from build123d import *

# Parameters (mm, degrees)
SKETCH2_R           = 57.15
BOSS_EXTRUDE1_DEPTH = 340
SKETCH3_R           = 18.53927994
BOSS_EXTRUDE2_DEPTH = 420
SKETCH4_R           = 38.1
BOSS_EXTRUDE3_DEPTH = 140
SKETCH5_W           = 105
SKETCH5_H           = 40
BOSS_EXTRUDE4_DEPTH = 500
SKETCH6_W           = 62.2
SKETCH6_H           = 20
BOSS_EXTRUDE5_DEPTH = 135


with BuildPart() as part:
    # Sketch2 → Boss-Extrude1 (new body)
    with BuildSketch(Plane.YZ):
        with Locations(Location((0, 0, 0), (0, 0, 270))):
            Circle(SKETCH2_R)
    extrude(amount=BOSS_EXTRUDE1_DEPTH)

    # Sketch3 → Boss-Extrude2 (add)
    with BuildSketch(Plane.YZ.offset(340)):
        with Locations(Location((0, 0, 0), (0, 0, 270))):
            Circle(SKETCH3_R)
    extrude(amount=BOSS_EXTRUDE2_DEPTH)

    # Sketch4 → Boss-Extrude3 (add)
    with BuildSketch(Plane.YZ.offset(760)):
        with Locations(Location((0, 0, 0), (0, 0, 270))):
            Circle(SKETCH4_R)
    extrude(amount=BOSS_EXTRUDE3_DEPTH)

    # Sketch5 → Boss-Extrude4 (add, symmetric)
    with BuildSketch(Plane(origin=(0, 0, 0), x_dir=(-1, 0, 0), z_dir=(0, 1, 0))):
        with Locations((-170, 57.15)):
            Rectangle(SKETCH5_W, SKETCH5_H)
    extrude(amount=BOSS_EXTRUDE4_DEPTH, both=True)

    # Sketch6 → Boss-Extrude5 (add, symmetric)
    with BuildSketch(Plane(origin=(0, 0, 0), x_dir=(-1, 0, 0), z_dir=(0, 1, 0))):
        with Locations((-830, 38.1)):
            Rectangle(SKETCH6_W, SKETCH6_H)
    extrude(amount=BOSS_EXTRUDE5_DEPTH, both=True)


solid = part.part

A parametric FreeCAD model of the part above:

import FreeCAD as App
import Part
import Sketcher
from FreeCAD import Vector
Q = App.Units.Quantity

doc = App.newDocument("Part")
body = doc.addObject("PartDesign::Body", "Body")

sketch1 = doc.addObject("Sketcher::SketchObject", "Sketch")
body.addObject(sketch1)
sketch1.AttachmentSupport = (doc.YZ_Plane, [""])
sketch1.MapMode = "FlatFace"
sketch1.addGeometry(Part.Circle(Vector(0, 0, 0), Vector(0, 0, 1), 57), False)
sketch1.addConstraint([
    Sketcher.Constraint("Coincident", 0, 3, -1, 1),
    Sketcher.Constraint("Diameter", 0, Q("114.3 mm")),
])
pad1 = doc.addObject("PartDesign::Pad", "Pad")
body.addObject(pad1)
pad1.Profile = sketch1
pad1.Length = 340

sketch2 = doc.addObject("Sketcher::SketchObject", "Sketch001")
body.addObject(sketch2)
sketch2.AttachmentSupport = (doc.YZ_Plane, [""])
sketch2.MapMode = "FlatFace"
sketch2.AttachmentOffset = App.Placement(Vector(0, 0, 340), App.Rotation())
sketch2.addGeometry(Part.Circle(Vector(0, 0, 0), Vector(0, 0, 1), 19), False)
sketch2.addConstraint([
    Sketcher.Constraint("Coincident", 0, 3, -1, 1),
    Sketcher.Constraint("Diameter", 0, Q("37.07856 mm")),
])
pad2 = doc.addObject("PartDesign::Pad", "Pad001")
body.addObject(pad2)
pad2.Profile = sketch2
pad2.Length = 420

sketch3 = doc.addObject("Sketcher::SketchObject", "Sketch002")
body.addObject(sketch3)
sketch3.AttachmentSupport = (doc.YZ_Plane, [""])
sketch3.MapMode = "FlatFace"
sketch3.AttachmentOffset = App.Placement(Vector(0, 0, 760), App.Rotation())
sketch3.addGeometry(Part.Circle(Vector(0, 0, 0), Vector(0, 0, 1), 38), False)
sketch3.addConstraint([
    Sketcher.Constraint("Coincident", 0, 3, -1, 1),
    Sketcher.Constraint("Diameter", 0, Q("76.2 mm")),
])
pad3 = doc.addObject("PartDesign::Pad", "Pad002")
body.addObject(pad3)
pad3.Profile = sketch3
pad3.Length = 140

sketch4 = doc.addObject("Sketcher::SketchObject", "Sketch003")
body.addObject(sketch4)
sketch4.AttachmentSupport = (doc.XZ_Plane, [""])
sketch4.MapMode = "FlatFace"
sketch4.addGeometry([
    Part.LineSegment(Vector(222, 77, 0), Vector(222, 37, 0)),
    Part.LineSegment(Vector(222, 37, 0), Vector(118, 37, 0)),
    Part.LineSegment(Vector(118, 37, 0), Vector(118, 77, 0)),
    Part.LineSegment(Vector(118, 77, 0), Vector(222, 77, 0)),
], False)
sketch4.addConstraint([
    Sketcher.Constraint("Coincident", 0, 2, 1, 1),
    Sketcher.Constraint("Coincident", 1, 2, 2, 1),
    Sketcher.Constraint("Coincident", 2, 2, 3, 1),
    Sketcher.Constraint("Coincident", 3, 2, 0, 1),
    Sketcher.Constraint("Vertical", 0),
    Sketcher.Constraint("Horizontal", 1),
    Sketcher.Constraint("Vertical", 2),
    Sketcher.Constraint("Horizontal", 3),
    Sketcher.Constraint("DistanceX", 1, 2, 1, 1, Q("105 mm")),
    Sketcher.Constraint("DistanceY", 0, 2, 0, 1, Q("40 mm")),
    Sketcher.Constraint("DistanceX", -1, 1, 0, 2, Q("222.5 mm")),
    Sketcher.Constraint("DistanceY", -1, 1, 0, 2, Q("37.15 mm")),
])
pad4 = doc.addObject("PartDesign::Pad", "Pad003")
body.addObject(pad4)
pad4.Profile = sketch4
pad4.Length = 1000
pad4.Midplane = True

sketch5 = doc.addObject("Sketcher::SketchObject", "Sketch004")
body.addObject(sketch5)
sketch5.AttachmentSupport = (doc.XZ_Plane, [""])
sketch5.MapMode = "FlatFace"
sketch5.addGeometry([
    Part.LineSegment(Vector(861, 48, 0), Vector(861, 28, 0)),
    Part.LineSegment(Vector(861, 28, 0), Vector(799, 28, 0)),
    Part.LineSegment(Vector(799, 28, 0), Vector(799, 48, 0)),
    Part.LineSegment(Vector(799, 48, 0), Vector(861, 48, 0)),
], False)
sketch5.addConstraint([
    Sketcher.Constraint("Coincident", 0, 2, 1, 1),
    Sketcher.Constraint("Coincident", 1, 2, 2, 1),
    Sketcher.Constraint("Coincident", 2, 2, 3, 1),
    Sketcher.Constraint("Coincident", 3, 2, 0, 1),
    Sketcher.Constraint("Vertical", 0),
    Sketcher.Constraint("Horizontal", 1),
    Sketcher.Constraint("Vertical", 2),
    Sketcher.Constraint("Horizontal", 3),
    Sketcher.Constraint("DistanceY", 0, 2, 0, 1, Q("20 mm")),
    Sketcher.Constraint("DistanceX", 1, 2, 1, 1, Q("62.2 mm")),
    Sketcher.Constraint("DistanceX", -1, 1, 0, 2, Q("861.1 mm")),
    Sketcher.Constraint("DistanceY", -1, 1, 0, 2, Q("28.1 mm")),
])
pad5 = doc.addObject("PartDesign::Pad", "Pad004")
body.addObject(pad5)
pad5.Profile = sketch5
pad5.Length = 270
pad5.Midplane = True

doc.recompute()
